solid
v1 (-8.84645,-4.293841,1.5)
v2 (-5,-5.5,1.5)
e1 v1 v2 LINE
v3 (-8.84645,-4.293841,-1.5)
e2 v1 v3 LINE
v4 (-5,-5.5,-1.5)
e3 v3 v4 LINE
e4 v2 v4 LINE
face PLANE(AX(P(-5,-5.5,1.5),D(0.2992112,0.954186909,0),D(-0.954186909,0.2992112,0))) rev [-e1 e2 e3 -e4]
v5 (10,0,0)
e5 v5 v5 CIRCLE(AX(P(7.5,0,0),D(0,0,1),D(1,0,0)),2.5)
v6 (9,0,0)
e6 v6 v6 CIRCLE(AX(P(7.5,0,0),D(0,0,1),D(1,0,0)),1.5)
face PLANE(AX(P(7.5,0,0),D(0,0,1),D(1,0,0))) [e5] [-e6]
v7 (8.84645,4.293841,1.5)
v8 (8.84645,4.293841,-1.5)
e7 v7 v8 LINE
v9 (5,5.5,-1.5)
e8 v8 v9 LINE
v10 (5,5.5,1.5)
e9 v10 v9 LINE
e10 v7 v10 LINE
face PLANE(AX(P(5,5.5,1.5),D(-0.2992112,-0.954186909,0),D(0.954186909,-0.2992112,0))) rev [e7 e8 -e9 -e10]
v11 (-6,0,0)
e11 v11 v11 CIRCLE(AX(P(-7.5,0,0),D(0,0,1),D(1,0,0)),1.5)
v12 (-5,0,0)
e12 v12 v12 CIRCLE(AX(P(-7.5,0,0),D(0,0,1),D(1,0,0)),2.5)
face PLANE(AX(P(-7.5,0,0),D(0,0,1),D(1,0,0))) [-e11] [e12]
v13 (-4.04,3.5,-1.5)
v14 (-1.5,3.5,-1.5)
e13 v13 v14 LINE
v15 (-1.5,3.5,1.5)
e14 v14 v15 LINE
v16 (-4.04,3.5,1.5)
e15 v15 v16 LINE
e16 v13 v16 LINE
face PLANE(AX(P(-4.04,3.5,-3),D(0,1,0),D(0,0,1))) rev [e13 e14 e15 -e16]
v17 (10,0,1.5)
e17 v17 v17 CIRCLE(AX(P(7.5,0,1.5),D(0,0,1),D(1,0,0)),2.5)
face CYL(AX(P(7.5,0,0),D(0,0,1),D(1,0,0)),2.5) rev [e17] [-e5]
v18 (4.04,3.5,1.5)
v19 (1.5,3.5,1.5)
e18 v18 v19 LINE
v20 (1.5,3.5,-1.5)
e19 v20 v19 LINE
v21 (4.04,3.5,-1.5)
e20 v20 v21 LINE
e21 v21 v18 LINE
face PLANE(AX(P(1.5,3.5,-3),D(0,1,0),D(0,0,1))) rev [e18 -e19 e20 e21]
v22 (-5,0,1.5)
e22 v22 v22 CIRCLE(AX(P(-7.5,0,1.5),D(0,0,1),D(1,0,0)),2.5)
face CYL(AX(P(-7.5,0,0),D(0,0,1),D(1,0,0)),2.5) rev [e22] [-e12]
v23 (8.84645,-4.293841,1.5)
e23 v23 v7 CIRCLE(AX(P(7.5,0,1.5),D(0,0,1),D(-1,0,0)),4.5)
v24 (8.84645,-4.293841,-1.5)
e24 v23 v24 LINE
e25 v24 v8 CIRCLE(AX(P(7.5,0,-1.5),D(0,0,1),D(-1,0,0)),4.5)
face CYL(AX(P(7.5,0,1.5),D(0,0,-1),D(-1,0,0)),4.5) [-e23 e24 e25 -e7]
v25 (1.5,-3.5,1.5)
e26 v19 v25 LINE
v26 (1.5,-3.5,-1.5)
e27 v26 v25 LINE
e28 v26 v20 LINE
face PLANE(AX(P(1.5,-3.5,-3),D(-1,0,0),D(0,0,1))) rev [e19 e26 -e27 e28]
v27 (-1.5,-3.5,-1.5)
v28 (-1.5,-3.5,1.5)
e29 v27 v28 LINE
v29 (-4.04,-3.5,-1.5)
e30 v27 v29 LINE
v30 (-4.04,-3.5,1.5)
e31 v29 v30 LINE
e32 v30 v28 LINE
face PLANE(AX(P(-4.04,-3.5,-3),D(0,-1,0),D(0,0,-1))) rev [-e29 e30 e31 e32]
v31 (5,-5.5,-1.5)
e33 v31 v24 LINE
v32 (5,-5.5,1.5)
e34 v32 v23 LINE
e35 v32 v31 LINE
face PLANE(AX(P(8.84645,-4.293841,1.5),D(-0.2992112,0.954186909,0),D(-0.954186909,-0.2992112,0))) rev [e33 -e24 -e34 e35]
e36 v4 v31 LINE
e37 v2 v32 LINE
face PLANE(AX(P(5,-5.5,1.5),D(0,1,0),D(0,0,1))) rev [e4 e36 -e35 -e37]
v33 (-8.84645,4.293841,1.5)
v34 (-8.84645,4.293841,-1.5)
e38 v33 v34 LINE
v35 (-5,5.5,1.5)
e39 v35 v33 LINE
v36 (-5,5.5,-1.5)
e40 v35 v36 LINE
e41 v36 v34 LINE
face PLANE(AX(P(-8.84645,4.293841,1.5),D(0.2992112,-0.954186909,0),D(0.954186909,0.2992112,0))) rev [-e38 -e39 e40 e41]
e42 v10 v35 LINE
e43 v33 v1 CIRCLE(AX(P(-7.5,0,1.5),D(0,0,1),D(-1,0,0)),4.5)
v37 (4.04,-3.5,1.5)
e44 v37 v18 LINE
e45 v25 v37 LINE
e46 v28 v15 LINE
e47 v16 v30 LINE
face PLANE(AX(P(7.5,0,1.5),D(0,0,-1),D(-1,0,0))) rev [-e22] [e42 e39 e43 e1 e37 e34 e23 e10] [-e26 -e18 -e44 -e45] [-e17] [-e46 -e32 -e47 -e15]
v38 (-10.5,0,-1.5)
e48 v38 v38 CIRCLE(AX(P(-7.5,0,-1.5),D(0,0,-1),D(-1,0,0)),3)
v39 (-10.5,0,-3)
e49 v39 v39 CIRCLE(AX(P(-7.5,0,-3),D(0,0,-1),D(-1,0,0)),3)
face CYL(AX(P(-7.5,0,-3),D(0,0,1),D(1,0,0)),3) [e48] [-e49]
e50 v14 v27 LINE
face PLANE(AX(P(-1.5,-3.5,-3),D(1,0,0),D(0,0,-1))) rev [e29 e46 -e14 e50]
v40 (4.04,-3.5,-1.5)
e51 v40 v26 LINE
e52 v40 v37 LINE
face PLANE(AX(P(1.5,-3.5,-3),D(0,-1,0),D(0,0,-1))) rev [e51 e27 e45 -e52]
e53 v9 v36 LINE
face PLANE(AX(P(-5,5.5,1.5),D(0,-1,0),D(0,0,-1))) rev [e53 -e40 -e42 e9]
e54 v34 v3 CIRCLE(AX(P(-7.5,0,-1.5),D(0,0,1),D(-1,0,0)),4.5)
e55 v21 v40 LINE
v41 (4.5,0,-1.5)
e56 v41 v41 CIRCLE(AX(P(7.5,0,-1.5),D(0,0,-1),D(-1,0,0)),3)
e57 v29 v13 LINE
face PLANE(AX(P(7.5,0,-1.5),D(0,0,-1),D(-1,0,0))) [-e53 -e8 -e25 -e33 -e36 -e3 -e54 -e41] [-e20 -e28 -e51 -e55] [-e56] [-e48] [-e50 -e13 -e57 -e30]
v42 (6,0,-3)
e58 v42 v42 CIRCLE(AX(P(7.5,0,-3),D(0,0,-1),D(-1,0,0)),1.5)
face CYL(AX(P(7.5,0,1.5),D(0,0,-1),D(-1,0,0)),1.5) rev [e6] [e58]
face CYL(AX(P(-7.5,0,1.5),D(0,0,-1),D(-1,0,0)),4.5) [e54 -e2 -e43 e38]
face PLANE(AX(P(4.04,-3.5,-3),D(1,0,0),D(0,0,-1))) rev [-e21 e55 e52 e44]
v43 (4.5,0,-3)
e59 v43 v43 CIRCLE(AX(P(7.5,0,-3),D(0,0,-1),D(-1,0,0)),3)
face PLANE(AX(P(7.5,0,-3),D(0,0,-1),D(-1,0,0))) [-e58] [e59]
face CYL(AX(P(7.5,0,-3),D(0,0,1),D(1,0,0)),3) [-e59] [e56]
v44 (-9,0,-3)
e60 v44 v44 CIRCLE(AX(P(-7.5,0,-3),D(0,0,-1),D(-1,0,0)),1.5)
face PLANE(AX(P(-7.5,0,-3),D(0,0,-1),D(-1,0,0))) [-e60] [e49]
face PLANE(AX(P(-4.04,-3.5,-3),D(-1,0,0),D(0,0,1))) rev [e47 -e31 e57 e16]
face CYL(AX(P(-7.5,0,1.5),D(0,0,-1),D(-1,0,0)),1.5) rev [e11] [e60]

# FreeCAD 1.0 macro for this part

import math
import FreeCAD as App
import Part
import Sketcher

V = App.Vector
Q = App.Units.Quantity

doc = App.newDocument("Part")
body = doc.addObject("PartDesign::Body", "Body")

# Sketch on XY plane
sketch1 = body.newObject("Sketcher::SketchObject", "Sketch")
sketch1.AttachmentSupport = (doc.getObject("XY_Plane"), [""])
sketch1.MapMode = "FlatFace"
sketch1.addGeometry([
    Part.LineSegment(V(5, 5.5, 0), V(-5, 5.5, 0)),  # 0
    Part.LineSegment(V(-5, 5.5, 0), V(-8.8, 4.3, 0)),  # 1
    Part.ArcOfCircle(Part.Circle(V(-7.5, 0, 0), V(0, 0, 1), 4.5), math.radians(107), math.radians(253)),  # 2
    Part.LineSegment(V(-8.8, -4.3, 0), V(-5, -5.5, 0)),  # 3
    Part.LineSegment(V(-5, -5.5, 0), V(5, -5.5, 0)),  # 4
    Part.LineSegment(V(5, -5.5, 0), V(8.8, -4.3, 0)),  # 5
    Part.ArcOfCircle(Part.Circle(V(7.5, 0, 0), V(0, 0, 1), 4.5), math.radians(-73), math.radians(73)),  # 6
    Part.LineSegment(V(8.8, 4.3, 0), V(5, 5.5, 0)),  # 7
    Part.Circle(V(7.5, 0, 0), V(0, 0, 1), 1.5),  # 8
    Part.Circle(V(-7.5, 0, 0), V(0, 0, 1), 1.5),  # 9
], False)
sketch1.addConstraint([
    Sketcher.Constraint("Coincident", 0, 2, 1, 1),
    Sketcher.Constraint("Tangent", 1, 2, 2, 1),
    Sketcher.Constraint("Tangent", 2, 2, 3, 1),
    Sketcher.Constraint("Coincident", 3, 2, 4, 1),
    Sketcher.Constraint("Coincident", 4, 2, 5, 1),
    Sketcher.Constraint("Tangent", 5, 2, 6, 1),
    Sketcher.Constraint("Tangent", 6, 2, 7, 1),
    Sketcher.Constraint("Coincident", 7, 2, 0, 1),
    Sketcher.Constraint("Horizontal", 0),
    Sketcher.Constraint("Horizontal", 4),
    Sketcher.Constraint("Coincident", 8, 3, 6, 3),
    Sketcher.Constraint("Coincident", 9, 3, 2, 3),
    Sketcher.Constraint("Equal", 2, 6),
    Sketcher.Constraint("Equal", 8, 9),
    Sketcher.Constraint("Symmetric", 2, 3, 6, 3, -1, 1),
    Sketcher.Constraint("Symmetric", 0, 2, 4, 2, -1, 1),
    Sketcher.Constraint("Symmetric", 2, 2, 5, 2, -2),
    Sketcher.Constraint("Parallel", 3, 7),
    Sketcher.Constraint("Diameter", 8, Q("3 mm")),
    Sketcher.Constraint("Radius", 2, Q("4.5 mm")),
    Sketcher.Constraint("DistanceX", 0, 2, 0, 1, Q("10 mm")),
    Sketcher.Constraint("DistanceX", 2, 3, 6, 3, Q("15 mm")),
    Sketcher.Constraint("DistanceY", 3, 2, 0, 2, Q("11 mm")),
])
pad1 = body.newObject("PartDesign::Pad", "Pad")
pad1.Profile = sketch1
pad1.Length = 3
pad1.Midplane = True

# Sketch on XY plane
sketch2 = body.newObject("Sketcher::SketchObject", "Sketch001")
sketch2.AttachmentSupport = (doc.getObject("XY_Plane"), [""])
sketch2.MapMode = "FlatFace"
sketch2.AttachmentOffset = App.Placement(V(0, 0, -3), App.Rotation())
sketch2.addGeometry([
    Part.Circle(V(7.5, 0, 0), V(0, 0, 1), 3),
    Part.Circle(V(7.5, 0, 0), V(0, 0, 1), 1.5),
    Part.Circle(V(-7.5, 0, 0), V(0, 0, 1), 3),
    Part.Circle(V(-7.5, 0, 0), V(0, 0, 1), 1.5),
], False)
sketch2.addConstraint([
    Sketcher.Constraint("Coincident", 1, 3, 0, 3),
    Sketcher.Constraint("Coincident", 3, 3, 2, 3),
    Sketcher.Constraint("Equal", 0, 2),
    Sketcher.Constraint("Equal", 1, 3),
    Sketcher.Constraint("Symmetric", 0, 3, 2, 3, -1, 1),
    Sketcher.Constraint("PointOnObject", 0, 3, -1),
    Sketcher.Constraint("Diameter", 0, Q("6 mm")),
    Sketcher.Constraint("Diameter", 1, Q("3 mm")),
    Sketcher.Constraint("DistanceX", 2, 3, 0, 3, Q("15 mm")),
])
pad2 = body.newObject("PartDesign::Pad", "Pad001")
pad2.Profile = sketch2
pad2.Length = 1.5

# Sketch on XY plane
sketch3 = body.newObject("Sketcher::SketchObject", "Sketch002")
sketch3.AttachmentSupport = (doc.getObject("XY_Plane"), [""])
sketch3.MapMode = "FlatFace"
sketch3.AttachmentOffset = App.Placement(V(0, 0, 1.5), App.Rotation())
sketch3.addGeometry([
    Part.Circle(V(-7.5, 0, 0), V(0, 0, 1), 2.5),
    Part.Circle(V(7.5, 0, 0), V(0, 0, 1), 2.5),
], False)
sketch3.addConstraint([
    Sketcher.Constraint("Equal", 0, 1),
    Sketcher.Constraint("Symmetric", 0, 3, 1, 3, -1, 1),
    Sketcher.Constraint("PointOnObject", 0, 3, -1),
    Sketcher.Constraint("Diameter", 0, Q("5 mm")),
    Sketcher.Constraint("DistanceX", 0, 3, 1, 3, Q("15 mm")),
])
pocket1 = body.newObject("PartDesign::Pocket", "Pocket")
pocket1.Profile = sketch3
pocket1.Length = 1.5

# Sketch on XY plane
sketch4 = body.newObject("Sketcher::SketchObject", "Sketch003")
sketch4.AttachmentSupport = (doc.getObject("XY_Plane"), [""])
sketch4.MapMode = "FlatFace"
sketch4.AttachmentOffset = App.Placement(V(0, 0, 1.5), App.Rotation())
sketch4.addGeometry([
    Part.LineSegment(V(-4, 3.5, 0), V(-4, -3.5, 0)),  # 0
    Part.LineSegment(V(-4, -3.5, 0), V(-1.5, -3.5, 0)),  # 1
    Part.LineSegment(V(-1.5, -3.5, 0), V(-1.5, 3.5, 0)),  # 2
    Part.LineSegment(V(-1.5, 3.5, 0), V(-4, 3.5, 0)),  # 3
    Part.LineSegment(V(1.5, 3.5, 0), V(1.5, -3.5, 0)),  # 4
    Part.LineSegment(V(1.5, -3.5, 0), V(4, -3.5, 0)),  # 5
    Part.LineSegment(V(4, -3.5, 0), V(4, 3.5, 0)),  # 6
    Part.LineSegment(V(4, 3.5, 0), V(1.5, 3.5, 0)),  # 7
], False)
sketch4.addConstraint([
    Sketcher.Constraint("Coincident", 0, 2, 1, 1),
    Sketcher.Constraint("Coincident", 1, 2, 2, 1),
    Sketcher.Constraint("Coincident", 2, 2, 3, 1),
    Sketcher.Constraint("Coincident", 3, 2, 0, 1),
    Sketcher.Constraint("Coincident", 4, 2, 5, 1),
    Sketcher.Constraint("Coincident", 5, 2, 6, 1),
    Sketcher.Constraint("Coincident", 6, 2, 7, 1),
    Sketcher.Constraint("Coincident", 7, 2, 4, 1),
    Sketcher.Constraint("Vertical", 0),
    Sketcher.Constraint("Horizontal", 1),
    Sketcher.Constraint("Vertical", 2),
    Sketcher.Constraint("Horizontal", 3),
    Sketcher.Constraint("Vertical", 4),
    Sketcher.Constraint("Horizontal", 5),
    Sketcher.Constraint("Vertical", 6),
    Sketcher.Constraint("Horizontal", 7),
    Sketcher.Constraint("Symmetric", 2, 2, 4, 2, -1, 1),
    Sketcher.Constraint("Symmetric", 0, 2, 6, 2, -1, 1),
    Sketcher.Constraint("Horizontal", 1, 2, 4, 2),
    Sketcher.Constraint("DistanceY", 0, 2, 0, 1, Q("7 mm")),
    Sketcher.Constraint("DistanceX", 1, 2, 4, 2, Q("3 mm")),
    Sketcher.Constraint("DistanceX", 1, 1, 1, 2, Q("2.54 mm")),
])
pocket2 = body.newObject("PartDesign::Pocket", "Pocket001")
pocket2.Profile = sketch4
pocket2.Type = "ThroughAll"

doc.recompute()
